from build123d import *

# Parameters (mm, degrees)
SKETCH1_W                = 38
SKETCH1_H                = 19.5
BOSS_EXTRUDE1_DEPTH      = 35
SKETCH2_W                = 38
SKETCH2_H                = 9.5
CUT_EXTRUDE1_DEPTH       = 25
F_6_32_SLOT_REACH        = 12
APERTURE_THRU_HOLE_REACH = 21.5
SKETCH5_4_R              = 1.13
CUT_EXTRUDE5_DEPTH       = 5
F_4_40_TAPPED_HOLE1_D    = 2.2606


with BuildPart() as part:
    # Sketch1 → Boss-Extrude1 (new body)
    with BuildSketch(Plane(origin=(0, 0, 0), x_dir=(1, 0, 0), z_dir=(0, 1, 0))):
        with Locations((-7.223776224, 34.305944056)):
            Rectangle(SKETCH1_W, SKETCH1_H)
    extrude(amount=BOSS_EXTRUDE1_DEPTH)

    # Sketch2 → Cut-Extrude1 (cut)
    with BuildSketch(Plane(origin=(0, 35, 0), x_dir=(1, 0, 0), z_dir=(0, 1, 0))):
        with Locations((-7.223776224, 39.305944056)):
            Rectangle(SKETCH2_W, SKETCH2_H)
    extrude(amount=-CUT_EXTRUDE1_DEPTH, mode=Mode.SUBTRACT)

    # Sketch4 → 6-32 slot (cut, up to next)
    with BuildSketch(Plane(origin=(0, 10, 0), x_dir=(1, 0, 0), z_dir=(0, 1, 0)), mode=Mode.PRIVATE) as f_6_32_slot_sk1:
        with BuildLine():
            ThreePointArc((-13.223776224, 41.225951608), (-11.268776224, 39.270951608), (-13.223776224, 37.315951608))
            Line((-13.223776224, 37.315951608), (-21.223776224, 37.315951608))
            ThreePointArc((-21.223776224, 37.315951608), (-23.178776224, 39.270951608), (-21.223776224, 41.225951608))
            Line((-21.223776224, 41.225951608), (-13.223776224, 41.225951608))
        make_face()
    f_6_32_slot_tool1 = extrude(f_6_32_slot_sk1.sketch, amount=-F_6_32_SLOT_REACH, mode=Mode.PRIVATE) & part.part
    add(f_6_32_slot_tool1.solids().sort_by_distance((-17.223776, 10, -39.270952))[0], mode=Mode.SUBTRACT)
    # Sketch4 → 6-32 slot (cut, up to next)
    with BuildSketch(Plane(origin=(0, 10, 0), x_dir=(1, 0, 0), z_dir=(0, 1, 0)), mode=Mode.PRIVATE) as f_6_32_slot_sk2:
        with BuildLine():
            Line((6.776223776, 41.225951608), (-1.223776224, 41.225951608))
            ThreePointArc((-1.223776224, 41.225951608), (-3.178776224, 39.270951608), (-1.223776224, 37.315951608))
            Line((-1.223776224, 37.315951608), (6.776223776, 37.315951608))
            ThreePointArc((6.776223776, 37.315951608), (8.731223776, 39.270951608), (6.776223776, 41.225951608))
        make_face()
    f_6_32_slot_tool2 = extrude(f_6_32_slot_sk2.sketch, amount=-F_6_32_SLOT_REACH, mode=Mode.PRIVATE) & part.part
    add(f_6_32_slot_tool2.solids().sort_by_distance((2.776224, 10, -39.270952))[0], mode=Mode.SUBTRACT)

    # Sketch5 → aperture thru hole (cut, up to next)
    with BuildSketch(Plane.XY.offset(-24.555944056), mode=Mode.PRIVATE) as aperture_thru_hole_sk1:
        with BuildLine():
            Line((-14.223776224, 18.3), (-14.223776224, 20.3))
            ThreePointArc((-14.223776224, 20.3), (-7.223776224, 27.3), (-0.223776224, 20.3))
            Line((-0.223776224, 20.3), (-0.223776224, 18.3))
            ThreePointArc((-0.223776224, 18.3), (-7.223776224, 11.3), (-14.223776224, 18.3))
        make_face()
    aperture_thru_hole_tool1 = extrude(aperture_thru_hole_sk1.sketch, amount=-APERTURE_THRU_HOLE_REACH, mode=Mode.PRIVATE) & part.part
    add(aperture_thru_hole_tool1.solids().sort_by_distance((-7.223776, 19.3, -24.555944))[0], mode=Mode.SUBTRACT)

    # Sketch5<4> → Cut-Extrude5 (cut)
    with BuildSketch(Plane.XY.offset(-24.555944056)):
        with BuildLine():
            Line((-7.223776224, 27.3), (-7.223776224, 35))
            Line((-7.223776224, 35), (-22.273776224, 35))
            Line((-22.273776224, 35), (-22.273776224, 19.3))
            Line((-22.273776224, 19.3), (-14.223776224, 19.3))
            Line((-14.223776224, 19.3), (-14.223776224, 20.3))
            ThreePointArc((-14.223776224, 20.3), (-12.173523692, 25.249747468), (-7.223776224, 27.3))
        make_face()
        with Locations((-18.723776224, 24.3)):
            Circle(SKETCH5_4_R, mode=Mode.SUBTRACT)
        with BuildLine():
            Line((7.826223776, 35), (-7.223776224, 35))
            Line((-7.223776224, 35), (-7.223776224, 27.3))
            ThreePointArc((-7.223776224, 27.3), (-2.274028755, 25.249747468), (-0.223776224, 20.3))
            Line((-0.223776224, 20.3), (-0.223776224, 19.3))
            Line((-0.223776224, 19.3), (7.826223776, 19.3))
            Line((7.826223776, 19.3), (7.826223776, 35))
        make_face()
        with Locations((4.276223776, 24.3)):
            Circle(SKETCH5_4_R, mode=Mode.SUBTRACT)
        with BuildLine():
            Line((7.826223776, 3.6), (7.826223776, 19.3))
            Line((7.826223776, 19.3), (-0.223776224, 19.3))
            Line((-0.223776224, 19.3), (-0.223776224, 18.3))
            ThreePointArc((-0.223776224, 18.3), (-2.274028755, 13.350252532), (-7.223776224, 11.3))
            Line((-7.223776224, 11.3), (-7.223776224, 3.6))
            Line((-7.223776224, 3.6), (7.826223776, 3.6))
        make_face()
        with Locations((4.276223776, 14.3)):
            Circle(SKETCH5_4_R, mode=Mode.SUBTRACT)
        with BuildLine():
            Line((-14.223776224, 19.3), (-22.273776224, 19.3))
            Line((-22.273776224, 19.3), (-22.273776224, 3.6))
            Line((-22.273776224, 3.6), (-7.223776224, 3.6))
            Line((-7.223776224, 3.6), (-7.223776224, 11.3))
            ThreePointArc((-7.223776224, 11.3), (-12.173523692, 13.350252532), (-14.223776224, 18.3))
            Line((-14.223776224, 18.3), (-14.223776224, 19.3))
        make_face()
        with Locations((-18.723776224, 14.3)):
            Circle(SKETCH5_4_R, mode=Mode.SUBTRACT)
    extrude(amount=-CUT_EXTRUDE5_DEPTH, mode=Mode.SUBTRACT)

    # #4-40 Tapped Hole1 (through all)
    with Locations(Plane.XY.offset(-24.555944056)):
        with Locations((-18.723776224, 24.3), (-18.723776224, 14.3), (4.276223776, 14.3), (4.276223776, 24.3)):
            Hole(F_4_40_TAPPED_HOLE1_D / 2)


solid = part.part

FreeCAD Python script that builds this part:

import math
import FreeCAD as App
import Part
import Sketcher

doc = App.newDocument("Part")
body = doc.addObject("PartDesign::Body", "Body")

# Sketch on XZ plane
sketch1 = body.newObject("Sketcher::SketchObject", "Sketch")
sketch1.AttachmentSupport = (doc.getObject("XZ_Plane"), [""])
sketch1.MapMode = "FlatFace"
sketch1.addGeometry(Part.LineSegment(App.Vector(-26, -44, 0), App.Vector(-26, -25, 0)), False)
sketch1.addGeometry(Part.LineSegment(App.Vector(-26, -25, 0), App.Vector(12, -25, 0)), False)
sketch1.addGeometry(Part.LineSegment(App.Vector(12, -25, 0), App.Vector(12, -44, 0)), False)
sketch1.addGeometry(Part.LineSegment(App.Vector(12, -44, 0), App.Vector(-26, -44, 0)), False)
sketch1.addConstraint(Sketcher.Constraint("Coincident", 0, 2, 1, 1))
sketch1.addConstraint(Sketcher.Constraint("Coincident", 1, 2, 2, 1))
sketch1.addConstraint(Sketcher.Constraint("Coincident", 2, 2, 3, 1))
sketch1.addConstraint(Sketcher.Constraint("Coincident", 3, 2, 0, 1))
sketch1.addConstraint(Sketcher.Constraint("Vertical", 0))
sketch1.addConstraint(Sketcher.Constraint("Horizontal", 1))
sketch1.addConstraint(Sketcher.Constraint("Vertical", 2))
sketch1.addConstraint(Sketcher.Constraint("Horizontal", 3))
sketch1.addConstraint(Sketcher.Constraint("DistanceX", 1, 1, 1, 2, 38.0))
sketch1.addConstraint(Sketcher.Constraint("DistanceY", 0, 1, 0, 2, 19.5))
sketch1.addConstraint(Sketcher.Constraint("DistanceX", 0, 2, -1, 1, 26.223776))
sketch1.addConstraint(Sketcher.Constraint("DistanceY", 0, 2, -1, 1, 24.555944))
pad1 = body.newObject("PartDesign::Pad", "Pad")
pad1.Profile = sketch1
pad1.Length = 35
pad1.Reversed = True

# Sketch on XZ plane
sketch2 = body.newObject("Sketcher::SketchObject", "Sketch001")
sketch2.AttachmentSupport = (doc.getObject("XZ_Plane"), [""])
sketch2.MapMode = "FlatFace"
sketch2.AttachmentOffset = App.Placement(App.Vector(0, 0, -35), App.Rotation())
sketch2.addGeometry(Part.LineSegment(App.Vector(-26, -44, 0), App.Vector(-26, -35, 0)), False)
sketch2.addGeometry(Part.LineSegment(App.Vector(-26, -35, 0), App.Vector(12, -35, 0)), False)
sketch2.addGeometry(Part.LineSegment(App.Vector(12, -35, 0), App.Vector(12, -44, 0)), False)
sketch2.addGeometry(Part.LineSegment(App.Vector(12, -44, 0), App.Vector(-26, -44, 0)), False)
sketch2.addConstraint(Sketcher.Constraint("Coincident", 0, 2, 1, 1))
sketch2.addConstraint(Sketcher.Constraint("Coincident", 1, 2, 2, 1))
sketch2.addConstraint(Sketcher.Constraint("Coincident", 2, 2, 3, 1))
sketch2.addConstraint(Sketcher.Constraint("Coincident", 3, 2, 0, 1))
sketch2.addConstraint(Sketcher.Constraint("Vertical", 0))
sketch2.addConstraint(Sketcher.Constraint("Horizontal", 1))
sketch2.addConstraint(Sketcher.Constraint("Vertical", 2))
sketch2.addConstraint(Sketcher.Constraint("Horizontal", 3))
sketch2.addConstraint(Sketcher.Constraint("DistanceX", 1, 1, 1, 2, 38.0))
sketch2.addConstraint(Sketcher.Constraint("DistanceY", 0, 1, 0, 2, 9.5))
sketch2.addConstraint(Sketcher.Constraint("DistanceX", 0, 2, -1, 1, 26.223776))
sketch2.addConstraint(Sketcher.Constraint("DistanceY", 0, 2, -1, 1, 34.555944))
pocket1 = body.newObject("PartDesign::Pocket", "Pocket")
pocket1.Profile = sketch2
pocket1.Length = 25
pocket1.Reversed = True

# Sketch on XZ plane
sketch3 = body.newObject("Sketcher::SketchObject", "Sketch002")
sketch3.AttachmentSupport = (doc.getObject("XZ_Plane"), [""])
sketch3.MapMode = "FlatFace"
sketch3.AttachmentOffset = App.Placement(App.Vector(0, 0, -10), App.Rotation())
sketch3.addGeometry(Part.ArcOfCircle(Part.Circle(App.Vector(-13.2, -39.3, 0), App.Vector(0, 0, 1), 2), math.radians(-90), math.radians(90)), False)
sketch3.addGeometry(Part.LineSegment(App.Vector(-13.2, -41.2, 0), App.Vector(-21.2, -41.2, 0)), False)
sketch3.addGeometry(Part.ArcOfCircle(Part.Circle(App.Vector(-21.2, -39.3, 0), App.Vector(0, 0, 1), 2), math.radians(90), math.radians(270)), False)
sketch3.addGeometry(Part.LineSegment(App.Vector(-21.2, -37.3, 0), App.Vector(-13.2, -37.3, 0)), False)
sketch3.addConstraint(Sketcher.Constraint("Tangent", 0, 1, 1, 1))
sketch3.addConstraint(Sketcher.Constraint("Tangent", 1, 2, 2, 2))
sketch3.addConstraint(Sketcher.Constraint("Tangent", 2, 1, 3, 1))
sketch3.addConstraint(Sketcher.Constraint("Tangent", 3, 2, 0, 2))
sketch3.addConstraint(Sketcher.Constraint("Horizontal", 1))
sketch3.addConstraint(Sketcher.Constraint("Horizontal", 3))
sketch3.addConstraint(Sketcher.Constraint("DistanceX", 1, 2, 1, 1, 8.0))
sketch3.addConstraint(Sketcher.Constraint("Radius", 0, 1.955))
sketch3.addConstraint(Sketcher.Constraint("DistanceY", 0, 3, -1, 1, 39.270952))
sketch3.addConstraint(Sketcher.Constraint("DistanceX", 0, 3, -1, 1, 13.223776))
pocket2 = body.newObject("PartDesign::Pocket", "Pocket001")
pocket2.Profile = sketch3
pocket2.Type = "UpToFirst"
pocket2.Reversed = True

# Sketch on XZ plane
sketch4 = body.newObject("Sketcher::SketchObject", "Sketch003")
sketch4.AttachmentSupport = (doc.getObject("XZ_Plane"), [""])
sketch4.MapMode = "FlatFace"
sketch4.AttachmentOffset = App.Placement(App.Vector(0, 0, -10), App.Rotation())
sketch4.addGeometry(Part.LineSegment(App.Vector(6.8, -41.2, 0), App.Vector(-1.2, -41.2, 0)), False)
sketch4.addGeometry(Part.ArcOfCircle(Part.Circle(App.Vector(-1.2, -39.3, 0), App.Vector(0, 0, 1), 2), math.radians(90), math.radians(270)), False)
sketch4.addGeometry(Part.LineSegment(App.Vector(-1.2, -37.3, 0), App.Vector(6.8, -37.3, 0)), False)
sketch4.addGeometry(Part.ArcOfCircle(Part.Circle(App.Vector(6.8, -39.3, 0), App.Vector(0, 0, 1), 2), math.radians(-90), math.radians(90)), False)
sketch4.addConstraint(Sketcher.Constraint("Tangent", 0, 2, 1, 2))
sketch4.addConstraint(Sketcher.Constraint("Tangent", 1, 1, 2, 1))
sketch4.addConstraint(Sketcher.Constraint("Tangent", 2, 2, 3, 2))
sketch4.addConstraint(Sketcher.Constraint("Tangent", 3, 1, 0, 1))
sketch4.addConstraint(Sketcher.Constraint("Horizontal", 0))
sketch4.addConstraint(Sketcher.Constraint("Horizontal", 2))
sketch4.addConstraint(Sketcher.Constraint("DistanceX", 0, 2, 0, 1, 8.0))
sketch4.addConstraint(Sketcher.Constraint("Radius", 1, 1.955))
sketch4.addConstraint(Sketcher.Constraint("DistanceY", 1, 3, -1, 1, 39.270952))
sketch4.addConstraint(Sketcher.Constraint("DistanceX", 1, 3, -1, 1, 1.223776))
pocket3 = body.newObject("PartDesign::Pocket", "Pocket002")
pocket3.Profile = sketch4
pocket3.Type = "UpToFirst"
pocket3.Reversed = True

# Sketch on XY plane
sketch5 = body.newObject("Sketcher::SketchObject", "Sketch004")
sketch5.AttachmentSupport = (doc.getObject("XY_Plane"), [""])
sketch5.MapMode = "FlatFace"
sketch5.AttachmentOffset = App.Placement(App.Vector(0, 0, -24.555944), App.Rotation())
sketch5.addGeometry(Part.LineSegment(App.Vector(-14.2, 20.3, 0), App.Vector(-14.2, 18.3, 0)), False)
sketch5.addGeometry(Part.ArcOfCircle(Part.Circle(App.Vector(-7.2, 18.3, 0), App.Vector(0, 0, 1), 7), math.radians(180), math.radians(360)), False)
sketch5.addGeometry(Part.LineSegment(App.Vector(-0.2, 18.3, 0), App.Vector(-0.2, 20.3, 0)), False)
sketch5.addGeometry(Part.ArcOfCircle(Part.Circle(App.Vector(-7.2, 20.3, 0), App.Vector(0, 0, 1), 7), math.radians(0), math.radians(180)), False)
sketch5.addConstraint(Sketcher.Constraint("Tangent", 0, 2, 1, 1))
sketch5.addConstraint(Sketcher.Constraint("Tangent", 1, 2, 2, 1))
sketch5.addConstraint(Sketcher.Constraint("Tangent", 2, 2, 3, 1))
sketch5.addConstraint(Sketcher.Constraint("Tangent", 3, 2, 0, 1))
sketch5.addConstraint(Sketcher.Constraint("Vertical", 0))
sketch5.addConstraint(Sketcher.Constraint("Vertical", 2))
sketch5.addConstraint(Sketcher.Constraint("Radius", 1, 7.0))
sketch5.addConstraint(Sketcher.Constraint("DistanceY", 0, 2, 0, 1, 2.0))
sketch5.addConstraint(Sketcher.Constraint("DistanceY", -1, 1, 1, 3, 18.3))
sketch5.addConstraint(Sketcher.Constraint("DistanceX", 1, 3, -1, 1, 7.223776))
pocket4 = body.newObject("PartDesign::Pocket", "Pocket003")
pocket4.Profile = sketch5
pocket4.Type = "UpToFirst"

# Sketch on XY plane
sketch6 = body.newObject("Sketcher::SketchObject", "Sketch005")
sketch6.AttachmentSupport = (doc.getObject("XY_Plane"), [""])
sketch6.MapMode = "FlatFace"
sketch6.AttachmentOffset = App.Placement(App.Vector(0, 0, -24.555944), App.Rotation())
sketch6.addGeometry(Part.LineSegment(App.Vector(-22.3, 35, 0), App.Vector(-22.3, 3.6, 0)), False)
sketch6.addGeometry(Part.LineSegment(App.Vector(-22.3, 3.6, 0), App.Vector(7.8, 3.6, 0)), False)
sketch6.addGeometry(Part.LineSegment(App.Vector(7.8, 3.6, 0), App.Vector(7.8, 35, 0)), False)
sketch6.addGeometry(Part.LineSegment(App.Vector(7.8, 35, 0), App.Vector(-22.3, 35, 0)), False)
sketch6.addGeometry(Part.Circle(App.Vector(-18.7, 14.3, 0), App.Vector(0, 0, 1), 1.1), False)
sketch6.addGeometry(Part.Circle(App.Vector(4.3, 14.3, 0), App.Vector(0, 0, 1), 1.1), False)
sketch6.addGeometry(Part.Circle(App.Vector(-18.7, 24.3, 0), App.Vector(0, 0, 1), 1.1), False)
sketch6.addGeometry(Part.ArcOfCircle(Part.Circle(App.Vector(-7.2, 20.3, 0), App.Vector(0, 0, 1), 7), math.radians(90), math.radians(180)), False)
sketch6.addGeometry(Part.ArcOfCircle(Part.Circle(App.Vector(-7.2, 20.3, 0), App.Vector(0, 0, 1), 7), math.radians(0), math.radians(90)), False)
sketch6.addGeometry(Part.LineSegment(App.Vector(-0.2, 20.3, 0), App.Vector(-0.2, 18.3, 0)), False)
sketch6.addGeometry(Part.ArcOfCircle(Part.Circle(App.Vector(-7.2, 18.3, 0), App.Vector(0, 0, 1), 7), math.radians(-90), math.radians(0)), False)
sketch6.addGeometry(Part.ArcOfCircle(Part.Circle(App.Vector(-7.2, 18.3, 0), App.Vector(0, 0, 1), 7), math.radians(-180), math.radians(-90)), False)
sketch6.addGeometry(Part.LineSegment(App.Vector(-14.2, 18.3, 0), App.Vector(-14.2, 20.3, 0)), False)
sketch6.addGeometry(Part.Circle(App.Vector(4.3, 24.3, 0), App.Vector(0, 0, 1), 1.1), False)
sketch6.addConstraint(Sketcher.Constraint("Coincident", 0, 2, 1, 1))
sketch6.addConstraint(Sketcher.Constraint("Coincident", 1, 2, 2, 1))
sketch6.addConstraint(Sketcher.Constraint("Coincident", 2, 2, 3, 1))
sketch6.addConstraint(Sketcher.Constraint("Coincident", 3, 2, 0, 1))
sketch6.addConstraint(Sketcher.Constraint("Tangent", 7, 1, 8, 2))
sketch6.addConstraint(Sketcher.Constraint("Tangent", 8, 1, 9, 1))
sketch6.addConstraint(Sketcher.Constraint("Tangent", 9, 2, 10, 2))
sketch6.addConstraint(Sketcher.Constraint("Tangent", 10, 1, 11, 2))
sketch6.addConstraint(Sketcher.Constraint("Tangent", 11, 1, 12, 1))
sketch6.addConstraint(Sketcher.Constraint("Tangent", 12, 2, 7, 2))
sketch6.addConstraint(Sketcher.Constraint("Vertical", 0))
sketch6.addConstraint(Sketcher.Constraint("Horizontal", 1))
sketch6.addConstraint(Sketcher.Constraint("Vertical", 2))
sketch6.addConstraint(Sketcher.Constraint("Horizontal", 3))
sketch6.addConstraint(Sketcher.Constraint("Vertical", 9))
sketch6.addConstraint(Sketcher.Constraint("Vertical", 12))
sketch6.addConstraint(Sketcher.Constraint("Equal", 4, 5))
sketch6.addConstraint(Sketcher.Constraint("Equal", 5, 6))
sketch6.addConstraint(Sketcher.Constraint("Equal", 7, 8))
sketch6.addConstraint(Sketcher.Constraint("Equal", 8, 10))
sketch6.addConstraint(Sketcher.Constraint("Equal", 6, 13))
sketch6.addConstraint(Sketcher.Constraint("Horizontal", 4, 3, 5, 3))
sketch6.addConstraint(Sketcher.Constraint("Horizontal", 6, 3, 13, 3))
sketch6.addConstraint(Sketcher.Constraint("Vertical", 4, 3, 6, 3))
sketch6.addConstraint(Sketcher.Constraint("Vertical", 5, 3, 13, 3))
sketch6.addConstraint(Sketcher.Constraint("Vertical", 11, 3, 7, 1))
sketch6.addConstraint(Sketcher.Constraint("Vertical", 7, 1, 10, 1))
sketch6.addConstraint(Sketcher.Constraint("Radius", 7, 7.0))
sketch6.addConstraint(Sketcher.Constraint("Diameter", 4, 2.26))
sketch6.addConstraint(Sketcher.Constraint("DistanceY", 9, 2, 9, 1, 2.0))
sketch6.addConstraint(Sketcher.Constraint("DistanceX", 1, 1, 1, 2, 30.1))
sketch6.addConstraint(Sketcher.Constraint("DistanceY", 0, 2, 0, 1, 31.4))
sketch6.addConstraint(Sketcher.Constraint("DistanceY", -1, 1, 2, 2, 35.0))
sketch6.addConstraint(Sketcher.Constraint("DistanceX", 4, 3, 5, 3, 23.0))
sketch6.addConstraint(Sketcher.Constraint("DistanceY", 4, 3, 6, 3, 10.0))
sketch6.addConstraint(Sketcher.Constraint("DistanceY", 7, 3, 6, 3, 4.0))
sketch6.addConstraint(Sketcher.Constraint("DistanceY", -1, 1, 4, 3, 14.3))
sketch6.addConstraint(Sketcher.Constraint("DistanceX", 6, 3, 7, 3, 11.5))
sketch6.addConstraint(Sketcher.Constraint("DistanceX", 0, 2, 4, 3, 3.55))
sketch6.addConstraint(Sketcher.Constraint("DistanceX", 4, 3, -1, 1, 18.723776))
pocket5 = body.newObject("PartDesign::Pocket", "Pocket004")
pocket5.Profile = sketch6
pocket5.Length = 5

# Sketch on XY plane
sketch7 = body.newObject("Sketcher::SketchObject", "Sketch006")
sketch7.AttachmentSupport = (doc.getObject("XY_Plane"), [""])
sketch7.MapMode = "FlatFace"
sketch7.AttachmentOffset = App.Placement(App.Vector(0, 0, -24.555944), App.Rotation())
sketch7.addGeometry(Part.Circle(App.Vector(-18.7, 24.3, 0), App.Vector(0, 0, 1), 1.1), False)
sketch7.addGeometry(Part.Circle(App.Vector(-18.7, 14.3, 0), App.Vector(0, 0, 1), 1.1), False)
sketch7.addGeometry(Part.Circle(App.Vector(4.3, 14.3, 0), App.Vector(0, 0, 1), 1.1), False)
sketch7.addGeometry(Part.Circle(App.Vector(4.3, 24.3, 0), App.Vector(0, 0, 1), 1.1), False)
sketch7.addConstraint(Sketcher.Constraint("Equal", 0, 1))
sketch7.addConstraint(Sketcher.Constraint("Equal", 1, 2))
sketch7.addConstraint(Sketcher.Constraint("Equal", 2, 3))
sketch7.addConstraint(Sketcher.Constraint("Horizontal", 1, 3, 2, 3))
sketch7.addConstraint(Sketcher.Constraint("Horizontal", 0, 3, 3, 3))
sketch7.addConstraint(Sketcher.Constraint("Vertical", 0, 3, 1, 3))
sketch7.addConstraint(Sketcher.Constraint("Vertical", 2, 3, 3, 3))
sketch7.addConstraint(Sketcher.Constraint("DistanceY", 1, 3, 0, 3, 10.0))
sketch7.addConstraint(Sketcher.Constraint("DistanceX", 1, 3, 2, 3, 23.0))
sketch7.addConstraint(Sketcher.Constraint("Diameter", 0, 2.2606))
sketch7.addConstraint(Sketcher.Constraint("DistanceY", -1, 1, 0, 3, 24.3))
sketch7.addConstraint(Sketcher.Constraint("DistanceX", 0, 3, -1, 1, 18.723776))
doc.recompute()
hole = body.newObject("PartDesign::Hole", "Hole")
hole.Profile = sketch7
hole.ThreadType = "None"
hole.Diameter = 2.2606
hole.DepthType = "ThroughAll"

doc.recompute()
